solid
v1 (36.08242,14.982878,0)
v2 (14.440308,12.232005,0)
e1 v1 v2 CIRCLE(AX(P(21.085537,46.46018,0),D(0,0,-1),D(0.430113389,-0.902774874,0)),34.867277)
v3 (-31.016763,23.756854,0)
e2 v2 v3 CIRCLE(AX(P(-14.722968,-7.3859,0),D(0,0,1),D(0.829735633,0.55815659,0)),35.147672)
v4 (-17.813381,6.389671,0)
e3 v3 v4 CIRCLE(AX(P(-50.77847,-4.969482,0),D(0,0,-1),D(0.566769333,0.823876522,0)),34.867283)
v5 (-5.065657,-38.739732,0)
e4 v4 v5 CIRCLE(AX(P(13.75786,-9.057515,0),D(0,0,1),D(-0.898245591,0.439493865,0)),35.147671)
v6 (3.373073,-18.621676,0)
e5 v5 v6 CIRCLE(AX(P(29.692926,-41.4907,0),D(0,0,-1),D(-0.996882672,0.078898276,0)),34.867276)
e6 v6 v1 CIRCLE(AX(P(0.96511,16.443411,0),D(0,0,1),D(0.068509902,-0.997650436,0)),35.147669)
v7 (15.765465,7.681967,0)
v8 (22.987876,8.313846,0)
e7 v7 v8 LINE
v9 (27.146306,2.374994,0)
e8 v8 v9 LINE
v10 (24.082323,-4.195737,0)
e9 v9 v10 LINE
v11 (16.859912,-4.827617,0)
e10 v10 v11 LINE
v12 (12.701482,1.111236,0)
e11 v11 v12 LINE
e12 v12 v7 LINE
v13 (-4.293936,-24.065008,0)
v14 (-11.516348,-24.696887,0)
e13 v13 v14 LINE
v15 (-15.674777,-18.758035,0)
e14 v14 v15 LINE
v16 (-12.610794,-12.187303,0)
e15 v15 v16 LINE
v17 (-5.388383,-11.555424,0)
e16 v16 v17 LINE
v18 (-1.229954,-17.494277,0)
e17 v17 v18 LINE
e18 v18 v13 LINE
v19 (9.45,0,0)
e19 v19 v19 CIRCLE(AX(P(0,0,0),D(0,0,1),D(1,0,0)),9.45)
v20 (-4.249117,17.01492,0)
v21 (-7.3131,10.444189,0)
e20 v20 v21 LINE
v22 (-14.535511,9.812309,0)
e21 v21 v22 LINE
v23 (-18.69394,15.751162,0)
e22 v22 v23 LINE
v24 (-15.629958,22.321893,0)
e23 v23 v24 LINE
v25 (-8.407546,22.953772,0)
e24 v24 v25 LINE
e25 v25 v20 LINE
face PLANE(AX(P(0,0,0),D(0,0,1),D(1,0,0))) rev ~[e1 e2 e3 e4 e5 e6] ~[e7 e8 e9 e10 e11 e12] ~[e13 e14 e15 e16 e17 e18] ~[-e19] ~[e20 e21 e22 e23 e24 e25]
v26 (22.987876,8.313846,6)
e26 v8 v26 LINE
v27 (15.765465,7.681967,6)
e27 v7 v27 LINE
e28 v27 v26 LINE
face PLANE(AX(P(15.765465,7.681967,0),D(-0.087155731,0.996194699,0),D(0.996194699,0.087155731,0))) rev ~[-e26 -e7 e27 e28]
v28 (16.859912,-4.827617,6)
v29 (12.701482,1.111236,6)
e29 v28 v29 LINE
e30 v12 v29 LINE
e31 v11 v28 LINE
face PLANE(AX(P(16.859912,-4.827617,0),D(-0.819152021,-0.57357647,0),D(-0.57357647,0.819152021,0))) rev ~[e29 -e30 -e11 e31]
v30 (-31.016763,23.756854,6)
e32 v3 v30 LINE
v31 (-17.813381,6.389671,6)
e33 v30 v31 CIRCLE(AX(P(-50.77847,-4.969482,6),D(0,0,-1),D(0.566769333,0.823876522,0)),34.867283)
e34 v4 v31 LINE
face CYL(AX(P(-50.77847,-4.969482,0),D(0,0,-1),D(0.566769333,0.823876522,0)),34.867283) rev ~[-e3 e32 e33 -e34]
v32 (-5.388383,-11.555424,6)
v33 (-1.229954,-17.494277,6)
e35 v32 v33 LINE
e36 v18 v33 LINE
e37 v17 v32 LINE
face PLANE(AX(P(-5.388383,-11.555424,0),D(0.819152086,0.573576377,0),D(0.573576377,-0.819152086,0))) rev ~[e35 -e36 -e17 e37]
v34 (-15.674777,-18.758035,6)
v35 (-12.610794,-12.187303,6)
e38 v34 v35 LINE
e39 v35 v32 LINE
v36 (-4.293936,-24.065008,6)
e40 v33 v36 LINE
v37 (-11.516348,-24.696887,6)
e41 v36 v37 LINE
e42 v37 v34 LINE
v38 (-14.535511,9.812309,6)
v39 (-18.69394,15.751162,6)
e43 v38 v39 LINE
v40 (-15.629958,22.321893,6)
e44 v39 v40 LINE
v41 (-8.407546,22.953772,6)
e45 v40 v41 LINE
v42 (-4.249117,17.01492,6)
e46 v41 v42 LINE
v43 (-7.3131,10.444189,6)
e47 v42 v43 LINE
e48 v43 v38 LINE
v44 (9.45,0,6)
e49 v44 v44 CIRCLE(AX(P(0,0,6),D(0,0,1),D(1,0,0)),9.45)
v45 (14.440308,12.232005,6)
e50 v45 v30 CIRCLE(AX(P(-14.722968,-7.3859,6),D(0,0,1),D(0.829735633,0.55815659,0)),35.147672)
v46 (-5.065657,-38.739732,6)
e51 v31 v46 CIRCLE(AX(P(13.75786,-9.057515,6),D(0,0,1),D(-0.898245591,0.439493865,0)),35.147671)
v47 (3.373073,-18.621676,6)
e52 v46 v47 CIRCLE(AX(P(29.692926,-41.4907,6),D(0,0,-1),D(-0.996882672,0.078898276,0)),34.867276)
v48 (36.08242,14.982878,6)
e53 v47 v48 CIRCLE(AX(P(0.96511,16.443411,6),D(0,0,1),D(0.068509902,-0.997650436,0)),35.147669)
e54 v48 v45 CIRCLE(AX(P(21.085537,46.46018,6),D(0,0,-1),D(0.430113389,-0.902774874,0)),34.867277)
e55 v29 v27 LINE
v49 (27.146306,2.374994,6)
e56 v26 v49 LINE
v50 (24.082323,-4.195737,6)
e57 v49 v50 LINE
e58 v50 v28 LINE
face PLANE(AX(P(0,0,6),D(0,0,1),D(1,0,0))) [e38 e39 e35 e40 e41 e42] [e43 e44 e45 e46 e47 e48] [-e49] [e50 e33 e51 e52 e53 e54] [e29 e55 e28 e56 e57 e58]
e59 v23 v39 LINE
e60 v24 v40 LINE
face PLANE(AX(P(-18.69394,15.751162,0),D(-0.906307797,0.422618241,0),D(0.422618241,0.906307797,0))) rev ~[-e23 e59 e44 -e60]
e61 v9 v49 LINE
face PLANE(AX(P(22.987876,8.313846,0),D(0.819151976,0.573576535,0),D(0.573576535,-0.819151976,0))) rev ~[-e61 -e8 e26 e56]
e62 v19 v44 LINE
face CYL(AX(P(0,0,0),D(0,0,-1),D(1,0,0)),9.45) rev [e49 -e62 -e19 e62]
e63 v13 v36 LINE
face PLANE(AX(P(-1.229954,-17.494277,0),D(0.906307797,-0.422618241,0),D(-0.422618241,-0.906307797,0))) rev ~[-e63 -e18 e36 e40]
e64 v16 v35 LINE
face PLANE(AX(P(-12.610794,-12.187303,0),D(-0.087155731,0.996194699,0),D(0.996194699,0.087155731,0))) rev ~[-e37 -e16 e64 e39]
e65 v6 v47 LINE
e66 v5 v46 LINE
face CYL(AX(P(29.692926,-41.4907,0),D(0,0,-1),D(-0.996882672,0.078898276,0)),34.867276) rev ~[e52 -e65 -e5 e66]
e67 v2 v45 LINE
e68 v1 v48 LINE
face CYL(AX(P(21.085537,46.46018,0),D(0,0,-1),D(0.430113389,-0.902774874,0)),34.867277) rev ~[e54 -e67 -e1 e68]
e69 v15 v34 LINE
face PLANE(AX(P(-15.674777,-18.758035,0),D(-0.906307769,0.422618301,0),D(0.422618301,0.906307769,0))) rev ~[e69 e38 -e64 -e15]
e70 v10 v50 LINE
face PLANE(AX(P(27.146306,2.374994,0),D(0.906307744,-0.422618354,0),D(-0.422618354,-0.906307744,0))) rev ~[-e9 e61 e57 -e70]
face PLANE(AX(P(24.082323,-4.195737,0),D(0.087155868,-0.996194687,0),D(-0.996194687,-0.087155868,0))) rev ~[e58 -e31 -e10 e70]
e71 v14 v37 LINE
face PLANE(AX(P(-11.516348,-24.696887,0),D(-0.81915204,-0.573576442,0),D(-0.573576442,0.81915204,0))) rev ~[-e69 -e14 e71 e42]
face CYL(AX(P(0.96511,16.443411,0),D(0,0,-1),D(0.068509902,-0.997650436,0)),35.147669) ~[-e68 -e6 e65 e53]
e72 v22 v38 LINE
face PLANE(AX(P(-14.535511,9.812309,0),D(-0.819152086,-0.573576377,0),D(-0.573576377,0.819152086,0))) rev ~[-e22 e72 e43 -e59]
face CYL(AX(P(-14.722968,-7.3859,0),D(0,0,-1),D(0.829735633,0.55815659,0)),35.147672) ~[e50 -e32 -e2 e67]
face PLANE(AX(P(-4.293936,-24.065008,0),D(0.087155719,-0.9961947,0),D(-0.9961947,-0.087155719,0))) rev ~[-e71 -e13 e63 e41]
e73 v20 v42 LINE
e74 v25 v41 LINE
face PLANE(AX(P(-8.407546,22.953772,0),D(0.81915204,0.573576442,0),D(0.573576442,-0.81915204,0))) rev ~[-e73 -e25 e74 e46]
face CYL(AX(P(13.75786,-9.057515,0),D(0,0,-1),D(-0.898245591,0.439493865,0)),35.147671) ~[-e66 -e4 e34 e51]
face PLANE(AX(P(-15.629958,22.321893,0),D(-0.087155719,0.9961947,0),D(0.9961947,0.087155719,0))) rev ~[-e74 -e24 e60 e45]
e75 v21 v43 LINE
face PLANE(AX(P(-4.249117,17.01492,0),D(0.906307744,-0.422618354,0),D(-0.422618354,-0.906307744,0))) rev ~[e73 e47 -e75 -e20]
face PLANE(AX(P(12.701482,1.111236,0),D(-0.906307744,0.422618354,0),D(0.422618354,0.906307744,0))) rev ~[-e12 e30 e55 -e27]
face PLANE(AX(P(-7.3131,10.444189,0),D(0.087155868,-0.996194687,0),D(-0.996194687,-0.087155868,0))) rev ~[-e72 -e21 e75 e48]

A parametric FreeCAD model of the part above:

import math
import FreeCAD as App
import Part
import Sketcher
from FreeCAD import Vector
Q = App.Units.Quantity

doc = App.newDocument("Part")
params = doc.addObject("Spreadsheet::Sheet", "Params")
for row, (alias, value) in enumerate([
    ("sketch1_diameter", "18.9 mm"),
    ("sketch1_length", "7.249999 mm"),
    ("pad1_length", "6 mm"),
], start=1):
    params.set(f"A{row}", alias)
    params.set(f"B{row}", "=" + value)
    params.setAlias(f"B{row}", alias)

body = doc.addObject("PartDesign::Body", "Body")

sketch1 = body.newObject("Sketcher::SketchObject", "Sketch")
sketch1.AttachmentSupport = (doc.getObject("XY_Plane"), [""])
sketch1.MapMode = "FlatFace"
sketch1.addGeometry(Part.ArcOfCircle(Part.Circle(Vector(21.085537, 46.46018, 0), Vector(0, 0, 1), 34.867277), math.radians(-100.987008), math.radians(-64.525244)), False)
sketch1.addGeometry(Part.ArcOfCircle(Part.Circle(Vector(-14.722968, -7.3859, 0), Vector(0, 0, 1), 35.147672), math.radians(33.928409), math.radians(117.618429)), False)
sketch1.addGeometry(Part.ArcOfCircle(Part.Circle(Vector(-50.77847, -4.969482, 0), Vector(0, 0, 1), 34.867283), math.radians(19.012993), math.radians(55.474753)), False)
sketch1.addGeometry(Part.ArcOfCircle(Part.Circle(Vector(13.75786, -9.057515, 0), Vector(0, 0, 1), 35.147671), math.radians(153.928408), math.radians(237.618431)), False)
sketch1.addGeometry(Part.ArcOfCircle(Part.Circle(Vector(29.692926, -41.4907, 0), Vector(0, 0, 1), 34.867276), math.radians(139.012991), math.radians(175.474759)), False)
sketch1.addGeometry(Part.ArcOfCircle(Part.Circle(Vector(0.96511, 16.443411, 0), Vector(0, 0, 1), 35.147669), math.radians(-86.071595), math.radians(-2.381566)), False)
sketch1.addGeometry(Part.LineSegment(Vector(-12.610794, -12.187303, 0), Vector(-5.388383, -11.555424, 0)), False)
sketch1.addGeometry(Part.LineSegment(Vector(-5.388383, -11.555424, 0), Vector(-1.229954, -17.494277, 0)), False)
sketch1.addGeometry(Part.LineSegment(Vector(-1.229954, -17.494277, 0), Vector(-4.293936, -24.065008, 0)), False)
sketch1.addGeometry(Part.LineSegment(Vector(-4.293936, -24.065008, 0), Vector(-11.516348, -24.696887, 0)), False)
sketch1.addGeometry(Part.LineSegment(Vector(-11.516348, -24.696887, 0), Vector(-15.674777, -18.758035, 0)), False)
sketch1.addGeometry(Part.LineSegment(Vector(-15.674777, -18.758035, 0), Vector(-12.610794, -12.187303, 0)), False)
sketch1.addGeometry(Part.Circle(Vector(0, 0, 0), Vector(0, 0, 1), 9.45), False)
sketch1.addGeometry(Part.LineSegment(Vector(-4.249117, 17.01492, 0), Vector(-7.3131, 10.444189, 0)), False)
sketch1.addGeometry(Part.LineSegment(Vector(-7.3131, 10.444189, 0), Vector(-14.535511, 9.812309, 0)), False)
sketch1.addGeometry(Part.LineSegment(Vector(-14.535511, 9.812309, 0), Vector(-18.69394, 15.751162, 0)), False)
sketch1.addGeometry(Part.LineSegment(Vector(-18.69394, 15.751162, 0), Vector(-15.629958, 22.321893, 0)), False)
sketch1.addGeometry(Part.LineSegment(Vector(-15.629958, 22.321893, 0), Vector(-8.407546, 22.953772, 0)), False)
sketch1.addGeometry(Part.LineSegment(Vector(-8.407546, 22.953772, 0), Vector(-4.249117, 17.01492, 0)), False)
sketch1.addGeometry(Part.LineSegment(Vector(24.082323, -4.195737, 0), Vector(16.859912, -4.827617, 0)), False)
sketch1.addGeometry(Part.LineSegment(Vector(16.859912, -4.827617, 0), Vector(12.701482, 1.111236, 0)), False)
sketch1.addGeometry(Part.LineSegment(Vector(12.701482, 1.111236, 0), Vector(15.765465, 7.681967, 0)), False)
sketch1.addGeometry(Part.LineSegment(Vector(15.765465, 7.681967, 0), Vector(22.987876, 8.313846, 0)), False)
sketch1.addGeometry(Part.LineSegment(Vector(22.987876, 8.313846, 0), Vector(27.146306, 2.374994, 0)), False)
sketch1.addGeometry(Part.LineSegment(Vector(27.146306, 2.374994, 0), Vector(24.082323, -4.195737, 0)), False)
sketch1.addConstraint(Sketcher.Constraint("Coincident", 0, 1, 1, 1))
sketch1.addConstraint(Sketcher.Constraint("Coincident", 1, 2, 2, 2))
sketch1.addConstraint(Sketcher.Constraint("Coincident", 2, 1, 3, 1))
sketch1.addConstraint(Sketcher.Constraint("Coincident", 3, 2, 4, 2))
sketch1.addConstraint(Sketcher.Constraint("Coincident", 4, 1, 5, 1))
sketch1.addConstraint(Sketcher.Constraint("Coincident", 5, 2, 0, 2))
sketch1.addConstraint(Sketcher.Constraint("Coincident", 6, 2, 7, 1))
sketch1.addConstraint(Sketcher.Constraint("Coincident", 7, 2, 8, 1))
sketch1.addConstraint(Sketcher.Constraint("Coincident", 8, 2, 9, 1))
sketch1.addConstraint(Sketcher.Constraint("Coincident", 9, 2, 10, 1))
sketch1.addConstraint(Sketcher.Constraint("Coincident", 10, 2, 11, 1))
sketch1.addConstraint(Sketcher.Constraint("Coincident", 11, 2, 6, 1))
sketch1.addConstraint(Sketcher.Constraint("Coincident", 13, 2, 14, 1))
sketch1.addConstraint(Sketcher.Constraint("Coincident", 14, 2, 15, 1))
sketch1.addConstraint(Sketcher.Constraint("Coincident", 15, 2, 16, 1))
sketch1.addConstraint(Sketcher.Constraint("Coincident", 16, 2, 17, 1))
sketch1.addConstraint(Sketcher.Constraint("Coincident", 17, 2, 18, 1))
sketch1.addConstraint(Sketcher.Constraint("Coincident", 18, 2, 13, 1))
sketch1.addConstraint(Sketcher.Constraint("Coincident", 19, 2, 20, 1))
sketch1.addConstraint(Sketcher.Constraint("Coincident", 20, 2, 21, 1))
sketch1.addConstraint(Sketcher.Constraint("Coincident", 21, 2, 22, 1))
sketch1.addConstraint(Sketcher.Constraint("Coincident", 22, 2, 23, 1))
sketch1.addConstraint(Sketcher.Constraint("Coincident", 23, 2, 24, 1))
sketch1.addConstraint(Sketcher.Constraint("Coincident", 24, 2, 19, 1))
sketch1.addConstraint(Sketcher.Constraint("Coincident", 12, 3, -1, 1))
sketch1.addConstraint(Sketcher.Constraint("Equal", 1, 3))
sketch1.addConstraint(Sketcher.Constraint("Equal", 0, 4))
sketch1.addConstraint(Sketcher.Constraint("Parallel", 6, 9))
sketch1.addConstraint(Sketcher.Constraint("Parallel", 7, 10))
sketch1.addConstraint(Sketcher.Constraint("Parallel", 8, 11))
sketch1.addConstraint(Sketcher.Constraint("Parallel", 11, 13))
sketch1.addConstraint(Sketcher.Constraint("Parallel", 9, 14))
sketch1.addConstraint(Sketcher.Constraint("Parallel", 10, 15))
sketch1.addConstraint(Sketcher.Constraint("Parallel", 13, 16))
sketch1.addConstraint(Sketcher.Constraint("Parallel", 14, 17))
sketch1.addConstraint(Sketcher.Constraint("Parallel", 15, 18))
sketch1.addConstraint(Sketcher.Constraint("Parallel", 17, 19))
sketch1.addConstraint(Sketcher.Constraint("Parallel", 18, 20))
sketch1.addConstraint(Sketcher.Constraint("Parallel", 16, 21))
sketch1.addConstraint(Sketcher.Constraint("Parallel", 19, 22))
sketch1.addConstraint(Sketcher.Constraint("Parallel", 20, 23))
sketch1.addConstraint(Sketcher.Constraint("Parallel", 21, 24))
sketch1.addConstraint(Sketcher.Constraint("Equal", 6, 7))
sketch1.addConstraint(Sketcher.Constraint("Equal", 7, 8))
sketch1.addConstraint(Sketcher.Constraint("Equal", 8, 9))
sketch1.addConstraint(Sketcher.Constraint("Equal", 11, 13))
sketch1.addConstraint(Sketcher.Constraint("Equal", 13, 14))
sketch1.addConstraint(Sketcher.Constraint("Equal", 14, 15))
sketch1.addConstraint(Sketcher.Constraint("Equal", 15, 16))
sketch1.addConstraint(Sketcher.Constraint("Equal", 18, 19))
sketch1.addConstraint(Sketcher.Constraint("Equal", 19, 20))
sketch1.addConstraint(Sketcher.Constraint("Equal", 20, 21))
sketch1.addConstraint(Sketcher.Constraint("Equal", 21, 22))
sketch1.addConstraint(Sketcher.Constraint("Diameter", 12, 18.9))
sketch1.addConstraint(Sketcher.Constraint("Angle", 6, Q("4.999999 deg")))
sketch1.addConstraint(Sketcher.Constraint("Angle", 7, Q("-55.000004 deg")))
sketch1.addConstraint(Sketcher.Constraint("Angle", 8, Q("-114.999999 deg")))
sketch1.addConstraint(Sketcher.Constraint("Distance", 6, 7.249999))
sketch1.addConstraint(Sketcher.Constraint("Radius", 3, 35.147671))
sketch1.addConstraint(Sketcher.Constraint("Radius", 5, 35.147669))
sketch1.addConstraint(Sketcher.Constraint("Radius", 0, 34.867277))
sketch1.addConstraint(Sketcher.Constraint("Radius", 2, 34.867283))
sketch1.addConstraint(Sketcher.Constraint("DistanceY", 1, 3, -1, 1, 7.3859))
sketch1.addConstraint(Sketcher.Constraint("DistanceY", 4, 3, -1, 1, 41.4907))
sketch1.addConstraint(Sketcher.Constraint("DistanceX", 13, 2, -1, 1, 7.3131))
sketch1.addConstraint(Sketcher.Constraint("DistanceX", 2, 3, 1, 3, 36.055502))
sketch1.addConstraint(Sketcher.Constraint("DistanceX", 5, 3, 0, 1, 13.475198))
sketch1.addConstraint(Sketcher.Constraint("DistanceY", 5, 2, 0, 3, 31.477302))
sketch1.addConstraint(Sketcher.Constraint("DistanceY", 4, 1, 7, 2, 1.127399))
sketch1.addConstraint(Sketcher.Constraint("DistanceY", -1, 1, 0, 3, 46.46018))
sketch1.addConstraint(Sketcher.Constraint("DistanceX", 1, 3, -1, 1, 14.722968))
sketch1.addConstraint(Sketcher.Constraint("DistanceX", -1, 1, 3, 3, 13.75786))
sketch1.addConstraint(Sketcher.Constraint("DistanceY", -1, 1, 5, 3, 16.443411))
sketch1.addConstraint(Sketcher.Constraint("DistanceX", 2, 1, -1, 1, 17.813381))
sketch1.addConstraint(Sketcher.Constraint("DistanceY", -1, 1, 2, 1, 6.389671))
sketch1.addConstraint(Sketcher.Constraint("DistanceX", 9, 2, -1, 1, 11.516348))
sketch1.addConstraint(Sketcher.Constraint("DistanceY", -1, 1, 13, 2, 10.444189))
sketch1.addConstraint(Sketcher.Constraint("DistanceX", 0, 3, 4, 3, 8.607389))
sketch1.addConstraint(Sketcher.Constraint("DistanceY", 19, 2, 0, 1, 17.059622))
sketch1.addConstraint(Sketcher.Constraint("DistanceX", 4, 1, 19, 2, 13.486839))
sketch1.setExpression("Constraints[53]", "Params.sketch1_diameter")
sketch1.setExpression("Constraints[57]", "Params.sketch1_length")
pad1 = body.newObject("PartDesign::Pad", "Pad")
pad1.Profile = sketch1
pad1.setExpression("Length", "Params.pad1_length")

doc.recompute()
